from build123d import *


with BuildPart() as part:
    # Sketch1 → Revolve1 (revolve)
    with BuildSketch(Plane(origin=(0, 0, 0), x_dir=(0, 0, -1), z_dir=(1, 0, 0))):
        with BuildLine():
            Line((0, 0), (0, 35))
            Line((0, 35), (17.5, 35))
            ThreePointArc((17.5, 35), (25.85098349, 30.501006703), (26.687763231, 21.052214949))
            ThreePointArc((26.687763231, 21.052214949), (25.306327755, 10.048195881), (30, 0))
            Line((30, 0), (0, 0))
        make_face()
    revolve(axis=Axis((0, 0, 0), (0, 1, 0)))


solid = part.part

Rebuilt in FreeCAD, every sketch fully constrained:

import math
import FreeCAD as App
import Part
import Sketcher

doc = App.newDocument("Part")
params = doc.addObject("Spreadsheet::Sheet", "Params")
for row, (alias, value) in enumerate([
    ("sketch1_radius", "20 mm"),
    ("sketch1_radius2", "10 mm"),
    ("sketch1_width", "35 mm"),
    ("sketch1_height", "30 mm"),
    ("sketch1_height2", "17.5 mm"),
    ("revolution_angle", "360 deg"),
], start=1):
    params.set(f"A{row}", alias)
    params.set(f"B{row}", "=" + value)
    params.setAlias(f"B{row}", alias)

body = doc.addObject("PartDesign::Body", "Body")

sketch1 = doc.addObject("Sketcher::SketchObject", "Sketch")
body.addObject(sketch1)
sketch1.AttachmentSupport = (doc.YZ_Plane, [""])
sketch1.MapMode = "FlatFace"
sketch1.addGeometry([
    Part.LineSegment(App.Vector(35, 0, 0), App.Vector(0, 0, 0)),
    Part.LineSegment(App.Vector(0, 0, 0), App.Vector(0, -30, 0)),
    Part.ArcOfCircle(Part.Circle(App.Vector(13, -45, 0), App.Vector(0, 0, 1), 20), math.radians(67), math.radians(131)),
    Part.ArcOfCircle(Part.Circle(App.Vector(25, -18, 0), App.Vector(0, 0, 1), 10), math.radians(-113), math.radians(0)),
    Part.LineSegment(App.Vector(35, -18, 0), App.Vector(35, 0, 0)),
], False)
sketch1.addConstraint([
    Sketcher.Constraint("Coincident", 0, 2, 1, 1),
    Sketcher.Constraint("Coincident", 1, 2, 2, 2),
    Sketcher.Constraint("Tangent", 2, 1, 3, 1),
    Sketcher.Constraint("Tangent", 3, 2, 4, 1),
    Sketcher.Constraint("Coincident", 4, 2, 0, 1),
    Sketcher.Constraint("Horizontal", 0),
    Sketcher.Constraint("Vertical", 1),
    Sketcher.Constraint("Vertical", 4),
    Sketcher.Constraint("Coincident", 0, 2, -1, 1),
    Sketcher.Constraint("Radius", 2, 20.0),
    Sketcher.Constraint("Radius", 3, 10.0),
    Sketcher.Constraint("DistanceX", 0, 2, 0, 1, 35.0),
    Sketcher.Constraint("DistanceY", 1, 2, 1, 1, 30.0),
    Sketcher.Constraint("DistanceY", 4, 1, 4, 2, 17.5),
])
sketch1.setExpression("Constraints[9]", "Params.sketch1_radius")
sketch1.setExpression("Constraints[10]", "Params.sketch1_radius2")
sketch1.setExpression("Constraints[11]", "Params.sketch1_width")
sketch1.setExpression("Constraints[12]", "Params.sketch1_height")
sketch1.setExpression("Constraints[13]", "Params.sketch1_height2")
revolution = doc.addObject("PartDesign::Revolution", "Revolution")
body.addObject(revolution)
revolution.Profile = sketch1
revolution.ReferenceAxis = (sketch1, ["H_Axis"])
revolution.setExpression("Angle", "Params.revolution_angle")

doc.recompute()
